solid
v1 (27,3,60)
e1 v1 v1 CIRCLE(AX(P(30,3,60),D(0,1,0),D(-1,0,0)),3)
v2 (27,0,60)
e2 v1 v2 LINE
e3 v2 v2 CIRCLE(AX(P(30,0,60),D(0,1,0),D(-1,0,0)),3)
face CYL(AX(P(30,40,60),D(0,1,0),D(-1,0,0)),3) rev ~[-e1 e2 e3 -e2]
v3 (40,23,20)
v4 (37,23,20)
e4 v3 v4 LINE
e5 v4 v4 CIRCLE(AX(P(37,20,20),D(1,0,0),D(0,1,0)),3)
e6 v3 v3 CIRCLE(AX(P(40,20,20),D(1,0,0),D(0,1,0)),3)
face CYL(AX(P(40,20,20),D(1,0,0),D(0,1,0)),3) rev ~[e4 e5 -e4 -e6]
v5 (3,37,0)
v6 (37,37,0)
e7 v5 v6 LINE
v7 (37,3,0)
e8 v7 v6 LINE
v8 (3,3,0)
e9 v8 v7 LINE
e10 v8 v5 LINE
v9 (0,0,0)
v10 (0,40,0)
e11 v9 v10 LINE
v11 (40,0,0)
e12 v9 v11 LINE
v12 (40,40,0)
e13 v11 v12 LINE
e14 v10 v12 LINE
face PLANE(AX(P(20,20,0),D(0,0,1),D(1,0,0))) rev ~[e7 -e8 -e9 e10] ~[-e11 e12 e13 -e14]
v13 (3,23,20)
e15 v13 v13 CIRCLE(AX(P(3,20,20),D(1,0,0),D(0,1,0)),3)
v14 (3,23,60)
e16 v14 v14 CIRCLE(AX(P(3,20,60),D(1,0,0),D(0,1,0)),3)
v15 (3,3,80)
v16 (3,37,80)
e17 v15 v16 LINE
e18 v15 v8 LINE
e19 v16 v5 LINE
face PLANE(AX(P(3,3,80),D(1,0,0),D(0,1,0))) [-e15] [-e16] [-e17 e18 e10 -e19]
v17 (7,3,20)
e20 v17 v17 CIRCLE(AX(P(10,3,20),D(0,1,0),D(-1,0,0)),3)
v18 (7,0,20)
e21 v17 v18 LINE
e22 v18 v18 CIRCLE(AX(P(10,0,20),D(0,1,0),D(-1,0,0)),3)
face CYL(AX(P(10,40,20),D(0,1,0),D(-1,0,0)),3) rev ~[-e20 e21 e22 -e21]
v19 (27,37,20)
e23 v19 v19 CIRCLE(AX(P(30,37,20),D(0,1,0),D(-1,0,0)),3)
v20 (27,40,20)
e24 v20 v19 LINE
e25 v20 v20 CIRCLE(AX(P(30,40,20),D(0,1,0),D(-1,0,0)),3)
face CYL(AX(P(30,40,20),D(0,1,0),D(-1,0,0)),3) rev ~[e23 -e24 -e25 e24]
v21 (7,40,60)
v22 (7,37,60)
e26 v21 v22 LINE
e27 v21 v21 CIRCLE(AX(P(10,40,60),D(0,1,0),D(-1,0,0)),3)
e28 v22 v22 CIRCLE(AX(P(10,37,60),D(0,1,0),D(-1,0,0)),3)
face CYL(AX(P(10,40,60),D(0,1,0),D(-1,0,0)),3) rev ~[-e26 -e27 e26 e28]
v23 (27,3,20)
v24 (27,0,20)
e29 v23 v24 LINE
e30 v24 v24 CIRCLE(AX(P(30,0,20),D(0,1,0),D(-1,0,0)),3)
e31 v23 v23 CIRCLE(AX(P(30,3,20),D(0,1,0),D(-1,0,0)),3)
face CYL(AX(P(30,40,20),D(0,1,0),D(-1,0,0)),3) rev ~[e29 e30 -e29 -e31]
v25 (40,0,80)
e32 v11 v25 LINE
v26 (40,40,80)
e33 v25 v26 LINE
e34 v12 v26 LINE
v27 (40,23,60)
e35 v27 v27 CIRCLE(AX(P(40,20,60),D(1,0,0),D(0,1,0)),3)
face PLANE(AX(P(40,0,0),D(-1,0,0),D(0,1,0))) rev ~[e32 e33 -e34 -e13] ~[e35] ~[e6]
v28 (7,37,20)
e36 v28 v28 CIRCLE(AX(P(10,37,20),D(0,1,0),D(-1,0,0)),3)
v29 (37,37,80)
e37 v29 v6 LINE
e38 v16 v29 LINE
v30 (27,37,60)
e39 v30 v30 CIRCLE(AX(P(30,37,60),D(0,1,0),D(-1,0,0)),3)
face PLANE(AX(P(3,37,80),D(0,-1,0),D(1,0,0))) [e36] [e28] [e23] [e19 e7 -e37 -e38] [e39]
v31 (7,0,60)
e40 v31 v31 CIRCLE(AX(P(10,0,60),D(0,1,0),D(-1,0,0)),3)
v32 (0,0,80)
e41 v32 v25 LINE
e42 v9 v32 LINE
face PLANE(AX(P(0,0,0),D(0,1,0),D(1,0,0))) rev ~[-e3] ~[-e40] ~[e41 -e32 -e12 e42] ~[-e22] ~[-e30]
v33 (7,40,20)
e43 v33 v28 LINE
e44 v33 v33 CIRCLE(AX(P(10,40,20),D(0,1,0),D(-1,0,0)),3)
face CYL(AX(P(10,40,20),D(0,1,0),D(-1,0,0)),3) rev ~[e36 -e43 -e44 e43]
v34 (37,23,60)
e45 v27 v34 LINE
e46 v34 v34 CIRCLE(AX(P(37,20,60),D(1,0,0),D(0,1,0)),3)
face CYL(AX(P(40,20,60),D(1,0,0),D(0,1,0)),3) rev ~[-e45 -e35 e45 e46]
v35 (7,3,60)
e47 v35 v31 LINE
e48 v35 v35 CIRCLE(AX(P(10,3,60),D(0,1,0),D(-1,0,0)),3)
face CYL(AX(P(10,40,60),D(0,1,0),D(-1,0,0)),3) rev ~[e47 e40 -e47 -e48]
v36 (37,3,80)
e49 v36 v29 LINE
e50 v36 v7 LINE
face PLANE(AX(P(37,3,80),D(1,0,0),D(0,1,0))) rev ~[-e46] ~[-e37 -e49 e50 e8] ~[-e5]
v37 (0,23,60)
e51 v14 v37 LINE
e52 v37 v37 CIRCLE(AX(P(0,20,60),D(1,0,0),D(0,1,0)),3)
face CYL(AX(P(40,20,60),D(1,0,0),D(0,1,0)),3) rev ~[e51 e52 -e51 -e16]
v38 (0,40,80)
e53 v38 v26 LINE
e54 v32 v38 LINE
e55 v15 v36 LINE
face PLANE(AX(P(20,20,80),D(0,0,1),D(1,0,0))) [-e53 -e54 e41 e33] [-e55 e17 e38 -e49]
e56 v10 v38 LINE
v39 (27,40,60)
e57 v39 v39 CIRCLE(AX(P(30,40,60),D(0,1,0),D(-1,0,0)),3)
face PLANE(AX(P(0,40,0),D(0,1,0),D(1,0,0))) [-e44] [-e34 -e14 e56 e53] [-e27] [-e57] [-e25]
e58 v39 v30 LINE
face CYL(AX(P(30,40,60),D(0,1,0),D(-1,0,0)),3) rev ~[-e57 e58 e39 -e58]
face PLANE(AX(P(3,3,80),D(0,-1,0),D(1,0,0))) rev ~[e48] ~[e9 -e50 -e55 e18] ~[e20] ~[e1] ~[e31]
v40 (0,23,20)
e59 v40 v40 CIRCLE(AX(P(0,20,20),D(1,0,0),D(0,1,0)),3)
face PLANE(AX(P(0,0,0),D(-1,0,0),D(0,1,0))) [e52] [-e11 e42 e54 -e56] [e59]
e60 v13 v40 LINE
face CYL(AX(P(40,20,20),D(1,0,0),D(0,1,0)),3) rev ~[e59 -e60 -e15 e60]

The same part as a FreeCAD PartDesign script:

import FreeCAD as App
import Part
import Sketcher
from FreeCAD import Vector

doc = App.newDocument("Part")
body = doc.addObject("PartDesign::Body", "Body")

sketch1 = doc.addObject("Sketcher::SketchObject", "Sketch")
body.addObject(sketch1)
sketch1.AttachmentSupport = (doc.XY_Plane, [""])
sketch1.MapMode = "FlatFace"
sketch1.addGeometry(Part.LineSegment(Vector(0, 40, 0), Vector(0, 0, 0)), False)
sketch1.addGeometry(Part.LineSegment(Vector(0, 0, 0), Vector(40, 0, 0)), False)
sketch1.addGeometry(Part.LineSegment(Vector(40, 0, 0), Vector(40, 40, 0)), False)
sketch1.addGeometry(Part.LineSegment(Vector(40, 40, 0), Vector(0, 40, 0)), False)
sketch1.addConstraint(Sketcher.Constraint("Coincident", 0, 2, 1, 1))
sketch1.addConstraint(Sketcher.Constraint("Coincident", 1, 2, 2, 1))
sketch1.addConstraint(Sketcher.Constraint("Coincident", 2, 2, 3, 1))
sketch1.addConstraint(Sketcher.Constraint("Coincident", 3, 2, 0, 1))
sketch1.addConstraint(Sketcher.Constraint("Vertical", 0))
sketch1.addConstraint(Sketcher.Constraint("Horizontal", 1))
sketch1.addConstraint(Sketcher.Constraint("Vertical", 2))
sketch1.addConstraint(Sketcher.Constraint("Horizontal", 3))
sketch1.addConstraint(Sketcher.Constraint("Coincident", 0, 2, -1, 1))
sketch1.addConstraint(Sketcher.Constraint("Equal", 3, 0))
sketch1.addConstraint(Sketcher.Constraint("DistanceX", 1, 1, 1, 2, 40.0))
pad1 = doc.addObject("PartDesign::Pad", "Pad")
body.addObject(pad1)
pad1.Profile = sketch1
pad1.Length = 80

sketch2 = doc.addObject("Sketcher::SketchObject", "Sketch001")
body.addObject(sketch2)
sketch2.AttachmentSupport = (doc.XY_Plane, [""])
sketch2.MapMode = "FlatFace"
sketch2.AttachmentOffset = App.Placement(Vector(0, 0, 80), App.Rotation())
sketch2.addGeometry(Part.LineSegment(Vector(3, 37, 0), Vector(3, 3, 0)), False)
sketch2.addGeometry(Part.LineSegment(Vector(3, 3, 0), Vector(37, 3, 0)), False)
sketch2.addGeometry(Part.LineSegment(Vector(37, 3, 0), Vector(37, 37, 0)), False)
sketch2.addGeometry(Part.LineSegment(Vector(37, 37, 0), Vector(3, 37, 0)), False)
sketch2.addConstraint(Sketcher.Constraint("Coincident", 0, 2, 1, 1))
sketch2.addConstraint(Sketcher.Constraint("Coincident", 1, 2, 2, 1))
sketch2.addConstraint(Sketcher.Constraint("Coincident", 2, 2, 3, 1))
sketch2.addConstraint(Sketcher.Constraint("Coincident", 3, 2, 0, 1))
sketch2.addConstraint(Sketcher.Constraint("Vertical", 0))
sketch2.addConstraint(Sketcher.Constraint("Horizontal", 1))
sketch2.addConstraint(Sketcher.Constraint("Vertical", 2))
sketch2.addConstraint(Sketcher.Constraint("Horizontal", 3))
sketch2.addConstraint(Sketcher.Constraint("Equal", 3, 0))
sketch2.addConstraint(Sketcher.Constraint("DistanceX", 1, 1, 1, 2, 34.0))
sketch2.addConstraint(Sketcher.Constraint("DistanceX", -1, 1, 0, 2, 3.0))
sketch2.addConstraint(Sketcher.Constraint("DistanceY", -1, 1, 0, 2, 3.0))
pocket1 = doc.addObject("PartDesign::Pocket", "Pocket")
body.addObject(pocket1)
pocket1.Profile = sketch2
pocket1.Length = 80

sketch3 = doc.addObject("Sketcher::SketchObject", "Sketch002")
body.addObject(sketch3)
sketch3.AttachmentSupport = (doc.XZ_Plane, [""])
sketch3.MapMode = "FlatFace"
sketch3.AttachmentOffset = App.Placement(Vector(0, 0, -40), App.Rotation())
sketch3.addGeometry(Part.Circle(Vector(30, 60, 0), Vector(0, 0, 1), 3), False)
sketch3.addGeometry(Part.Circle(Vector(10, 60, 0), Vector(0, 0, 1), 3), False)
sketch3.addGeometry(Part.Circle(Vector(30, 20, 0), Vector(0, 0, 1), 3), False)
sketch3.addGeometry(Part.Circle(Vector(10, 20, 0), Vector(0, 0, 1), 3), False)
sketch3.addConstraint(Sketcher.Constraint("Equal", 0, 1))
sketch3.addConstraint(Sketcher.Constraint("Equal", 1, 2))
sketch3.addConstraint(Sketcher.Constraint("Equal", 2, 3))
sketch3.addConstraint(Sketcher.Constraint("Horizontal", 0, 3, 1, 3))
sketch3.addConstraint(Sketcher.Constraint("Horizontal", 2, 3, 3, 3))
sketch3.addConstraint(Sketcher.Constraint("Vertical", 0, 3, 2, 3))
sketch3.addConstraint(Sketcher.Constraint("Vertical", 1, 3, 3, 3))
sketch3.addConstraint(Sketcher.Constraint("Diameter", 0, 6.0))
sketch3.addConstraint(Sketcher.Constraint("DistanceX", -1, 1, 0, 3, 30.0))
sketch3.addConstraint(Sketcher.Constraint("DistanceY", -1, 1, 0, 3, 60.0))
sketch3.addConstraint(Sketcher.Constraint("DistanceX", -1, 1, 1, 3, 10.0))
sketch3.addConstraint(Sketcher.Constraint("DistanceY", -1, 1, 2, 3, 20.0))
pocket2 = doc.addObject("PartDesign::Pocket", "Pocket001")
body.addObject(pocket2)
pocket2.Profile = sketch3
pocket2.Length = 40
pocket2.Reversed = True

sketch4 = doc.addObject("Sketcher::SketchObject", "Sketch003")
body.addObject(sketch4)
sketch4.AttachmentSupport = (doc.YZ_Plane, [""])
sketch4.MapMode = "FlatFace"
sketch4.AttachmentOffset = App.Placement(Vector(0, 0, 40), App.Rotation())
sketch4.addGeometry(Part.Circle(Vector(20, 60, 0), Vector(0, 0, 1), 3), False)
sketch4.addGeometry(Part.Circle(Vector(20, 20, 0), Vector(0, 0, 1), 3), False)
sketch4.addConstraint(Sketcher.Constraint("Equal", 0, 1))
sketch4.addConstraint(Sketcher.Constraint("Vertical", 0, 3, 1, 3))
sketch4.addConstraint(Sketcher.Constraint("Diameter", 0, 6.0))
sketch4.addConstraint(Sketcher.Constraint("DistanceX", -1, 1, 0, 3, 20.0))
sketch4.addConstraint(Sketcher.Constraint("DistanceY", -1, 1, 0, 3, 60.0))
sketch4.addConstraint(Sketcher.Constraint("DistanceY", -1, 1, 1, 3, 20.0))
pocket3 = doc.addObject("PartDesign::Pocket", "Pocket002")
body.addObject(pocket3)
pocket3.Profile = sketch4
pocket3.Length = 40

doc.recompute()
